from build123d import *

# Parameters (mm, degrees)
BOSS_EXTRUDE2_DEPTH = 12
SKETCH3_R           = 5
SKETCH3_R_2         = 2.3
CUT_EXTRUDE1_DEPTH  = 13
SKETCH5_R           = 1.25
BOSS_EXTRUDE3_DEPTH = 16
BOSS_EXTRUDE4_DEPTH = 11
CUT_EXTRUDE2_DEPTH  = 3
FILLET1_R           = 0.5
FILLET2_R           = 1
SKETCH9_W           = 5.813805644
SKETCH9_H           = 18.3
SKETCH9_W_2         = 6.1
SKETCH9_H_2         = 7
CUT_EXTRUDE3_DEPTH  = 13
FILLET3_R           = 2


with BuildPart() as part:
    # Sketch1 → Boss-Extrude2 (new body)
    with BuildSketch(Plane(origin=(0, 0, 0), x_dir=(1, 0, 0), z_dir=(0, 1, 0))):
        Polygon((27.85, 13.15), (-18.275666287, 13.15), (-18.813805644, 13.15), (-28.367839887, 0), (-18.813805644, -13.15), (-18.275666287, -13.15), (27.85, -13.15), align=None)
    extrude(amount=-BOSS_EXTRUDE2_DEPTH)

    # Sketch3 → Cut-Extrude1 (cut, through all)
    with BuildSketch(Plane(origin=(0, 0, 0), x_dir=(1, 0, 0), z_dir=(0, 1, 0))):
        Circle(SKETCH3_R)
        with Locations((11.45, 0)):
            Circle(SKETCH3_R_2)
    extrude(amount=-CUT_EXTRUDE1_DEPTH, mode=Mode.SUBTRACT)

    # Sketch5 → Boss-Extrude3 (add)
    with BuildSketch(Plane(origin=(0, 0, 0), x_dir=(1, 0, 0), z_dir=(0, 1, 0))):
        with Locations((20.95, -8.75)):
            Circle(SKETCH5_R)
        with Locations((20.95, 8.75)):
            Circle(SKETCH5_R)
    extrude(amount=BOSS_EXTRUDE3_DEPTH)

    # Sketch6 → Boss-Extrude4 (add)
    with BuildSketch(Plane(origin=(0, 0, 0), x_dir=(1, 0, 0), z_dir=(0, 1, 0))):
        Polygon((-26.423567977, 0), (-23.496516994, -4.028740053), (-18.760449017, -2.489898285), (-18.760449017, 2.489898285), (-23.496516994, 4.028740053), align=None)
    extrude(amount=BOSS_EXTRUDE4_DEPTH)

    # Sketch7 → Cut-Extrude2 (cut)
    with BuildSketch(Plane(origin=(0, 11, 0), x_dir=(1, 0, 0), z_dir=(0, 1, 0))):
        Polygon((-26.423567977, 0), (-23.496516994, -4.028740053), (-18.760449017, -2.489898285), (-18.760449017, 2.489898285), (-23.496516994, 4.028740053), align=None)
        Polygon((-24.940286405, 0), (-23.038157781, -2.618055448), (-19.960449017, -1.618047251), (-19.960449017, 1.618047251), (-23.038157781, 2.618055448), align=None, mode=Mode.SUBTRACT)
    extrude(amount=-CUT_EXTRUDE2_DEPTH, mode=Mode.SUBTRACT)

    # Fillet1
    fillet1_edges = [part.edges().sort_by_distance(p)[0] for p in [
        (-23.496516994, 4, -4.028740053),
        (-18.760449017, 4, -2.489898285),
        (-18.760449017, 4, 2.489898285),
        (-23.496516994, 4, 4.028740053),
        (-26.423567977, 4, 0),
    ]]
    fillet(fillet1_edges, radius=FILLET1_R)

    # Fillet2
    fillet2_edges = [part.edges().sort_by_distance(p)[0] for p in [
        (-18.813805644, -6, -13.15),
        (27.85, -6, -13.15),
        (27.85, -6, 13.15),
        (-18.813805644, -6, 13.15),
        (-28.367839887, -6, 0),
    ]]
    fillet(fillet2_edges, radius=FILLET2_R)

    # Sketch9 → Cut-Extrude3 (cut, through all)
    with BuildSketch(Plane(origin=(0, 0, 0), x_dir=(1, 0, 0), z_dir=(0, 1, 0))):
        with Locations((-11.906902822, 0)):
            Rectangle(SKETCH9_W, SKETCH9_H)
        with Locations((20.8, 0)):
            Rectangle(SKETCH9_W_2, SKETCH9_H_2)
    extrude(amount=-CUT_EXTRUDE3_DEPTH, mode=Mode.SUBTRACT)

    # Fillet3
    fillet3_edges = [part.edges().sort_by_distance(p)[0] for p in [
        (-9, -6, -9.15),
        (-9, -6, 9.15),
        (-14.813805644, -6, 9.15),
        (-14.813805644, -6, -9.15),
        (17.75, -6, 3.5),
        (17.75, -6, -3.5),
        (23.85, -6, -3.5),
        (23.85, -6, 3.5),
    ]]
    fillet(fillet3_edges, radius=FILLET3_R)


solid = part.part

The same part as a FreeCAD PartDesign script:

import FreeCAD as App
import Part
import Sketcher
from FreeCAD import Vector
Q = App.Units.Quantity


def edges_at(feature, points):
    """Names of the edges that pass closest to the given points."""
    edges = feature.Shape.Edges
    near = lambda p: min(range(len(edges)), key=lambda i: edges[i].distToShape(Part.Vertex(*p))[0])
    return sorted({f"Edge{near(p) + 1}" for p in points})


def add_polygon(sketch, points):
    """Adds a closed chain of lines whose ends are joined by coincident constraints."""
    first, n = sketch.GeometryCount, len(points)
    for a, b in zip(points, points[1:] + points[:1]):
        sketch.addGeometry(Part.LineSegment(App.Vector(*a, 0), App.Vector(*b, 0)), False)
    for i in range(n):
        sketch.addConstraint(Sketcher.Constraint("Coincident", first + i, 2, first + (i + 1) % n, 1))

doc = App.newDocument("Part")
body = doc.addObject("PartDesign::Body", "Body")

# Sketch on XZ plane
sketch1 = doc.addObject("Sketcher::SketchObject", "Sketch")
body.addObject(sketch1)
sketch1.AttachmentSupport = (doc.XZ_Plane, [""])
sketch1.MapMode = "FlatFace"
add_polygon(sketch1, [(27.85, -13.15), (-18.813806, -13.15), (-28.36784, 0), (-18.813806, 13.15), (27.85, 13.15)])  # lines 0-4
sketch1.addConstraint(Sketcher.Constraint("Horizontal", 0))
sketch1.addConstraint(Sketcher.Constraint("Horizontal", 3))
sketch1.addConstraint(Sketcher.Constraint("Vertical", 4))
sketch1.addConstraint(Sketcher.Constraint("Symmetric", 0, 2, 2, 2, -1))
sketch1.addConstraint(Sketcher.Constraint("PointOnObject", 1, 2, -1))
sketch1.addConstraint(Sketcher.Constraint("Angle", 1, Q("126 deg")))
sketch1.addConstraint(Sketcher.Constraint("DistanceY", 4, 2, 4, 1, Q("26.3 mm")))
sketch1.addConstraint(Sketcher.Constraint("DistanceX", -1, 1, 3, 2, Q("27.85 mm")))
sketch1.addConstraint(Sketcher.Constraint("DistanceX", 0, 2, 0, 1, Q("46.663806 mm")))
pad1 = doc.addObject("PartDesign::Pad", "Pad")
body.addObject(pad1)
pad1.Profile = sketch1
pad1.Length = 12

# Sketch on XZ plane
sketch2 = doc.addObject("Sketcher::SketchObject", "Sketch001")
body.addObject(sketch2)
sketch2.AttachmentSupport = (doc.XZ_Plane, [""])
sketch2.MapMode = "FlatFace"
sketch2.addGeometry(Part.Circle(Vector(0, 0, 0), Vector(0, 0, 1), 5), False)
sketch2.addGeometry(Part.Circle(Vector(11.45, 0, 0), Vector(0, 0, 1), 2.3), False)
sketch2.addConstraint(Sketcher.Constraint("Coincident", 0, 3, -1, 1))
sketch2.addConstraint(Sketcher.Constraint("PointOnObject", 1, 3, -1))
sketch2.addConstraint(Sketcher.Constraint("Diameter", 0, Q("10 mm")))
sketch2.addConstraint(Sketcher.Constraint("Diameter", 1, Q("4.6 mm")))
sketch2.addConstraint(Sketcher.Constraint("DistanceX", -1, 1, 1, 3, Q("11.45 mm")))
pocket1 = doc.addObject("PartDesign::Pocket", "Pocket")
body.addObject(pocket1)
pocket1.Profile = sketch2
pocket1.Type = "ThroughAll"
pocket1.Reversed = True

# Sketch on XZ plane
sketch3 = doc.addObject("Sketcher::SketchObject", "Sketch002")
body.addObject(sketch3)
sketch3.AttachmentSupport = (doc.XZ_Plane, [""])
sketch3.MapMode = "FlatFace"
sketch3.addGeometry(Part.Circle(Vector(20.95, 8.75, 0), Vector(0, 0, 1), 1.25), False)
sketch3.addGeometry(Part.Circle(Vector(20.95, -8.75, 0), Vector(0, 0, 1), 1.25), False)
sketch3.addConstraint(Sketcher.Constraint("Equal", 0, 1))
sketch3.addConstraint(Sketcher.Constraint("Symmetric", 0, 3, 1, 3, -1))
sketch3.addConstraint(Sketcher.Constraint("Diameter", 0, Q("2.5 mm")))
sketch3.addConstraint(Sketcher.Constraint("DistanceY", 1, 3, 0, 3, Q("17.5 mm")))
sketch3.addConstraint(Sketcher.Constraint("DistanceX", -1, 1, 0, 3, Q("20.95 mm")))
pad2 = doc.addObject("PartDesign::Pad", "Pad001")
body.addObject(pad2)
pad2.Profile = sketch3
pad2.Length = 16
pad2.Reversed = True

# Sketch on XZ plane
sketch4 = doc.addObject("Sketcher::SketchObject", "Sketch003")
body.addObject(sketch4)
sketch4.AttachmentSupport = (doc.XZ_Plane, [""])
sketch4.MapMode = "FlatFace"
add_polygon(sketch4, [(-26.423568, 0), (-23.496517, 4.02874), (-18.760449, 2.489898), (-18.760449, -2.489898), (-23.496517, -4.02874)])  # lines 0-4
sketch4.addConstraint(Sketcher.Constraint("Vertical", 2))
sketch4.addConstraint(Sketcher.Constraint("Symmetric", 0, 2, 3, 2, -1))
sketch4.addConstraint(Sketcher.Constraint("PointOnObject", 4, 2, -1))
sketch4.addConstraint(Sketcher.Constraint("Equal", 0, 1))
sketch4.addConstraint(Sketcher.Constraint("Equal", 1, 3))
sketch4.addConstraint(Sketcher.Constraint("Angle", 0, Q("54 deg")))
sketch4.addConstraint(Sketcher.Constraint("Angle", 1, Q("-18 deg")))
sketch4.addConstraint(Sketcher.Constraint("DistanceY", -1, 1, 1, 2, Q("2.489898 mm")))
sketch4.addConstraint(Sketcher.Constraint("DistanceX", 1, 2, -1, 1, Q("18.760449 mm")))
pad3 = doc.addObject("PartDesign::Pad", "Pad002")
body.addObject(pad3)
pad3.Profile = sketch4
pad3.Length = 11
pad3.Reversed = True

# Sketch on XZ plane
sketch5 = doc.addObject("Sketcher::SketchObject", "Sketch004")
body.addObject(sketch5)
sketch5.AttachmentSupport = (doc.XZ_Plane, [""])
sketch5.MapMode = "FlatFace"
sketch5.AttachmentOffset = App.Placement(Vector(0, 0, -11), App.Rotation())
add_polygon(sketch5, [(-26.423568, 0), (-23.496517, 4.02874), (-18.760449, 2.489898), (-18.760449, -2.489898), (-23.496517, -4.02874)])  # lines 0-4
add_polygon(sketch5, [(-23.038158, 2.618055), (-24.940286, 0), (-23.038158, -2.618055), (-19.960449, -1.618047), (-19.960449, 1.618047)])  # lines 5-9
sketch5.addConstraint(Sketcher.Constraint("Vertical", 2))
sketch5.addConstraint(Sketcher.Constraint("Vertical", 8))
sketch5.addConstraint(Sketcher.Constraint("Symmetric", 0, 2, 3, 2, -1))
sketch5.addConstraint(Sketcher.Constraint("Symmetric", 6, 2, 9, 2, -1))
sketch5.addConstraint(Sketcher.Constraint("PointOnObject", 4, 2, -1))
sketch5.addConstraint(Sketcher.Constraint("PointOnObject", 5, 2, -1))
sketch5.addConstraint(Sketcher.Constraint("Parallel", 0, 5))
sketch5.addConstraint(Sketcher.Constraint("Parallel", 3, 7))
sketch5.addConstraint(Sketcher.Constraint("Parallel", 1, 9))
sketch5.addConstraint(Sketcher.Constraint("Equal", 0, 1))
sketch5.addConstraint(Sketcher.Constraint("Equal", 1, 3))
sketch5.addConstraint(Sketcher.Constraint("Equal", 6, 7))
sketch5.addConstraint(Sketcher.Constraint("Angle", 0, Q("54 deg")))
sketch5.addConstraint(Sketcher.Constraint("Angle", 1, Q("-18 deg")))
sketch5.addConstraint(Sketcher.Constraint("DistanceX", 7, 2, 2, 2, Q("1.2 mm")))
sketch5.addConstraint(Sketcher.Constraint("DistanceY", -1, 1, 1, 2, Q("2.489898 mm")))
sketch5.addConstraint(Sketcher.Constraint("DistanceY", 8, 1, 8, 2, Q("3.236095 mm")))
sketch5.addConstraint(Sketcher.Constraint("DistanceX", 1, 2, -1, 1, Q("18.760449 mm")))
pocket2 = doc.addObject("PartDesign::Pocket", "Pocket001")
body.addObject(pocket2)
pocket2.Profile = sketch5
pocket2.Length = 3
pocket2.Reversed = True
doc.recompute()

fillet = doc.addObject("PartDesign::Fillet", "Fillet")
body.addObject(fillet)
fillet.Base = (pocket2, edges_at(pocket2, [
    (-23.497, 4, -4.029),
    (-18.76, 4, -2.49),
    (-18.76, 4, 2.49),
    (-23.497, 4, 4.029),
    (-26.424, 4, 0),
]))
fillet.Radius = 0.5
doc.recompute()

fillet2 = doc.addObject("PartDesign::Fillet", "Fillet001")
body.addObject(fillet2)
fillet2.Base = (fillet, edges_at(fillet, [
    (-18.814, -6, -13.15),
    (27.85, -6, -13.15),
    (27.85, -6, 13.15),
    (-18.814, -6, 13.15),
    (-28.368, -6, 0),
]))
fillet2.Radius = 1

# Sketch on XZ plane
sketch6 = doc.addObject("Sketcher::SketchObject", "Sketch005")
body.addObject(sketch6)
sketch6.AttachmentSupport = (doc.XZ_Plane, [""])
sketch6.MapMode = "FlatFace"
add_polygon(sketch6, [(-14.813806, -9.15), (-14.813806, 9.15), (-9, 9.15), (-9, -9.15)])  # lines 0-3
add_polygon(sketch6, [(17.75, -3.5), (17.75, 3.5), (23.85, 3.5), (23.85, -3.5)])  # lines 4-7
sketch6.addConstraint(Sketcher.Constraint("Vertical", 0))
sketch6.addConstraint(Sketcher.Constraint("Horizontal", 1))
sketch6.addConstraint(Sketcher.Constraint("Vertical", 2))
sketch6.addConstraint(Sketcher.Constraint("Horizontal", 3))
sketch6.addConstraint(Sketcher.Constraint("Vertical", 4))
sketch6.addConstraint(Sketcher.Constraint("Horizontal", 5))
sketch6.addConstraint(Sketcher.Constraint("Vertical", 6))
sketch6.addConstraint(Sketcher.Constraint("Horizontal", 7))
sketch6.addConstraint(Sketcher.Constraint("DistanceY", 4, 1, 4, 2, Q("7 mm")))
sketch6.addConstraint(Sketcher.Constraint("DistanceX", 5, 1, 5, 2, Q("6.1 mm")))
sketch6.addConstraint(Sketcher.Constraint("DistanceY", 0, 1, 0, 2, Q("18.3 mm")))
sketch6.addConstraint(Sketcher.Constraint("DistanceX", 1, 2, -1, 1, Q("9 mm")))
sketch6.addConstraint(Sketcher.Constraint("DistanceY", -1, 1, 4, 2, Q("3.5 mm")))
sketch6.addConstraint(Sketcher.Constraint("DistanceY", -1, 1, 0, 2, Q("9.15 mm")))
sketch6.addConstraint(Sketcher.Constraint("DistanceX", -1, 1, 4, 2, Q("17.75 mm")))
sketch6.addConstraint(Sketcher.Constraint("DistanceX", 1, 1, 1, 2, Q("5.813806 mm")))
pocket3 = doc.addObject("PartDesign::Pocket", "Pocket002")
body.addObject(pocket3)
pocket3.Profile = sketch6
pocket3.Type = "ThroughAll"
pocket3.Reversed = True
doc.recompute()

fillet3 = doc.addObject("PartDesign::Fillet", "Fillet002")
body.addObject(fillet3)
fillet3.Base = (pocket3, edges_at(pocket3, [
    (-9, -6, -9.15),
    (-9, -6, 9.15),
    (-14.814, -6, 9.15),
    (-14.814, -6, -9.15),
    (17.75, -6, 3.5),
    (17.75, -6, -3.5),
    (23.85, -6, -3.5),
    (23.85, -6, 3.5),
]))
fillet3.Radius = 2

doc.recompute()
